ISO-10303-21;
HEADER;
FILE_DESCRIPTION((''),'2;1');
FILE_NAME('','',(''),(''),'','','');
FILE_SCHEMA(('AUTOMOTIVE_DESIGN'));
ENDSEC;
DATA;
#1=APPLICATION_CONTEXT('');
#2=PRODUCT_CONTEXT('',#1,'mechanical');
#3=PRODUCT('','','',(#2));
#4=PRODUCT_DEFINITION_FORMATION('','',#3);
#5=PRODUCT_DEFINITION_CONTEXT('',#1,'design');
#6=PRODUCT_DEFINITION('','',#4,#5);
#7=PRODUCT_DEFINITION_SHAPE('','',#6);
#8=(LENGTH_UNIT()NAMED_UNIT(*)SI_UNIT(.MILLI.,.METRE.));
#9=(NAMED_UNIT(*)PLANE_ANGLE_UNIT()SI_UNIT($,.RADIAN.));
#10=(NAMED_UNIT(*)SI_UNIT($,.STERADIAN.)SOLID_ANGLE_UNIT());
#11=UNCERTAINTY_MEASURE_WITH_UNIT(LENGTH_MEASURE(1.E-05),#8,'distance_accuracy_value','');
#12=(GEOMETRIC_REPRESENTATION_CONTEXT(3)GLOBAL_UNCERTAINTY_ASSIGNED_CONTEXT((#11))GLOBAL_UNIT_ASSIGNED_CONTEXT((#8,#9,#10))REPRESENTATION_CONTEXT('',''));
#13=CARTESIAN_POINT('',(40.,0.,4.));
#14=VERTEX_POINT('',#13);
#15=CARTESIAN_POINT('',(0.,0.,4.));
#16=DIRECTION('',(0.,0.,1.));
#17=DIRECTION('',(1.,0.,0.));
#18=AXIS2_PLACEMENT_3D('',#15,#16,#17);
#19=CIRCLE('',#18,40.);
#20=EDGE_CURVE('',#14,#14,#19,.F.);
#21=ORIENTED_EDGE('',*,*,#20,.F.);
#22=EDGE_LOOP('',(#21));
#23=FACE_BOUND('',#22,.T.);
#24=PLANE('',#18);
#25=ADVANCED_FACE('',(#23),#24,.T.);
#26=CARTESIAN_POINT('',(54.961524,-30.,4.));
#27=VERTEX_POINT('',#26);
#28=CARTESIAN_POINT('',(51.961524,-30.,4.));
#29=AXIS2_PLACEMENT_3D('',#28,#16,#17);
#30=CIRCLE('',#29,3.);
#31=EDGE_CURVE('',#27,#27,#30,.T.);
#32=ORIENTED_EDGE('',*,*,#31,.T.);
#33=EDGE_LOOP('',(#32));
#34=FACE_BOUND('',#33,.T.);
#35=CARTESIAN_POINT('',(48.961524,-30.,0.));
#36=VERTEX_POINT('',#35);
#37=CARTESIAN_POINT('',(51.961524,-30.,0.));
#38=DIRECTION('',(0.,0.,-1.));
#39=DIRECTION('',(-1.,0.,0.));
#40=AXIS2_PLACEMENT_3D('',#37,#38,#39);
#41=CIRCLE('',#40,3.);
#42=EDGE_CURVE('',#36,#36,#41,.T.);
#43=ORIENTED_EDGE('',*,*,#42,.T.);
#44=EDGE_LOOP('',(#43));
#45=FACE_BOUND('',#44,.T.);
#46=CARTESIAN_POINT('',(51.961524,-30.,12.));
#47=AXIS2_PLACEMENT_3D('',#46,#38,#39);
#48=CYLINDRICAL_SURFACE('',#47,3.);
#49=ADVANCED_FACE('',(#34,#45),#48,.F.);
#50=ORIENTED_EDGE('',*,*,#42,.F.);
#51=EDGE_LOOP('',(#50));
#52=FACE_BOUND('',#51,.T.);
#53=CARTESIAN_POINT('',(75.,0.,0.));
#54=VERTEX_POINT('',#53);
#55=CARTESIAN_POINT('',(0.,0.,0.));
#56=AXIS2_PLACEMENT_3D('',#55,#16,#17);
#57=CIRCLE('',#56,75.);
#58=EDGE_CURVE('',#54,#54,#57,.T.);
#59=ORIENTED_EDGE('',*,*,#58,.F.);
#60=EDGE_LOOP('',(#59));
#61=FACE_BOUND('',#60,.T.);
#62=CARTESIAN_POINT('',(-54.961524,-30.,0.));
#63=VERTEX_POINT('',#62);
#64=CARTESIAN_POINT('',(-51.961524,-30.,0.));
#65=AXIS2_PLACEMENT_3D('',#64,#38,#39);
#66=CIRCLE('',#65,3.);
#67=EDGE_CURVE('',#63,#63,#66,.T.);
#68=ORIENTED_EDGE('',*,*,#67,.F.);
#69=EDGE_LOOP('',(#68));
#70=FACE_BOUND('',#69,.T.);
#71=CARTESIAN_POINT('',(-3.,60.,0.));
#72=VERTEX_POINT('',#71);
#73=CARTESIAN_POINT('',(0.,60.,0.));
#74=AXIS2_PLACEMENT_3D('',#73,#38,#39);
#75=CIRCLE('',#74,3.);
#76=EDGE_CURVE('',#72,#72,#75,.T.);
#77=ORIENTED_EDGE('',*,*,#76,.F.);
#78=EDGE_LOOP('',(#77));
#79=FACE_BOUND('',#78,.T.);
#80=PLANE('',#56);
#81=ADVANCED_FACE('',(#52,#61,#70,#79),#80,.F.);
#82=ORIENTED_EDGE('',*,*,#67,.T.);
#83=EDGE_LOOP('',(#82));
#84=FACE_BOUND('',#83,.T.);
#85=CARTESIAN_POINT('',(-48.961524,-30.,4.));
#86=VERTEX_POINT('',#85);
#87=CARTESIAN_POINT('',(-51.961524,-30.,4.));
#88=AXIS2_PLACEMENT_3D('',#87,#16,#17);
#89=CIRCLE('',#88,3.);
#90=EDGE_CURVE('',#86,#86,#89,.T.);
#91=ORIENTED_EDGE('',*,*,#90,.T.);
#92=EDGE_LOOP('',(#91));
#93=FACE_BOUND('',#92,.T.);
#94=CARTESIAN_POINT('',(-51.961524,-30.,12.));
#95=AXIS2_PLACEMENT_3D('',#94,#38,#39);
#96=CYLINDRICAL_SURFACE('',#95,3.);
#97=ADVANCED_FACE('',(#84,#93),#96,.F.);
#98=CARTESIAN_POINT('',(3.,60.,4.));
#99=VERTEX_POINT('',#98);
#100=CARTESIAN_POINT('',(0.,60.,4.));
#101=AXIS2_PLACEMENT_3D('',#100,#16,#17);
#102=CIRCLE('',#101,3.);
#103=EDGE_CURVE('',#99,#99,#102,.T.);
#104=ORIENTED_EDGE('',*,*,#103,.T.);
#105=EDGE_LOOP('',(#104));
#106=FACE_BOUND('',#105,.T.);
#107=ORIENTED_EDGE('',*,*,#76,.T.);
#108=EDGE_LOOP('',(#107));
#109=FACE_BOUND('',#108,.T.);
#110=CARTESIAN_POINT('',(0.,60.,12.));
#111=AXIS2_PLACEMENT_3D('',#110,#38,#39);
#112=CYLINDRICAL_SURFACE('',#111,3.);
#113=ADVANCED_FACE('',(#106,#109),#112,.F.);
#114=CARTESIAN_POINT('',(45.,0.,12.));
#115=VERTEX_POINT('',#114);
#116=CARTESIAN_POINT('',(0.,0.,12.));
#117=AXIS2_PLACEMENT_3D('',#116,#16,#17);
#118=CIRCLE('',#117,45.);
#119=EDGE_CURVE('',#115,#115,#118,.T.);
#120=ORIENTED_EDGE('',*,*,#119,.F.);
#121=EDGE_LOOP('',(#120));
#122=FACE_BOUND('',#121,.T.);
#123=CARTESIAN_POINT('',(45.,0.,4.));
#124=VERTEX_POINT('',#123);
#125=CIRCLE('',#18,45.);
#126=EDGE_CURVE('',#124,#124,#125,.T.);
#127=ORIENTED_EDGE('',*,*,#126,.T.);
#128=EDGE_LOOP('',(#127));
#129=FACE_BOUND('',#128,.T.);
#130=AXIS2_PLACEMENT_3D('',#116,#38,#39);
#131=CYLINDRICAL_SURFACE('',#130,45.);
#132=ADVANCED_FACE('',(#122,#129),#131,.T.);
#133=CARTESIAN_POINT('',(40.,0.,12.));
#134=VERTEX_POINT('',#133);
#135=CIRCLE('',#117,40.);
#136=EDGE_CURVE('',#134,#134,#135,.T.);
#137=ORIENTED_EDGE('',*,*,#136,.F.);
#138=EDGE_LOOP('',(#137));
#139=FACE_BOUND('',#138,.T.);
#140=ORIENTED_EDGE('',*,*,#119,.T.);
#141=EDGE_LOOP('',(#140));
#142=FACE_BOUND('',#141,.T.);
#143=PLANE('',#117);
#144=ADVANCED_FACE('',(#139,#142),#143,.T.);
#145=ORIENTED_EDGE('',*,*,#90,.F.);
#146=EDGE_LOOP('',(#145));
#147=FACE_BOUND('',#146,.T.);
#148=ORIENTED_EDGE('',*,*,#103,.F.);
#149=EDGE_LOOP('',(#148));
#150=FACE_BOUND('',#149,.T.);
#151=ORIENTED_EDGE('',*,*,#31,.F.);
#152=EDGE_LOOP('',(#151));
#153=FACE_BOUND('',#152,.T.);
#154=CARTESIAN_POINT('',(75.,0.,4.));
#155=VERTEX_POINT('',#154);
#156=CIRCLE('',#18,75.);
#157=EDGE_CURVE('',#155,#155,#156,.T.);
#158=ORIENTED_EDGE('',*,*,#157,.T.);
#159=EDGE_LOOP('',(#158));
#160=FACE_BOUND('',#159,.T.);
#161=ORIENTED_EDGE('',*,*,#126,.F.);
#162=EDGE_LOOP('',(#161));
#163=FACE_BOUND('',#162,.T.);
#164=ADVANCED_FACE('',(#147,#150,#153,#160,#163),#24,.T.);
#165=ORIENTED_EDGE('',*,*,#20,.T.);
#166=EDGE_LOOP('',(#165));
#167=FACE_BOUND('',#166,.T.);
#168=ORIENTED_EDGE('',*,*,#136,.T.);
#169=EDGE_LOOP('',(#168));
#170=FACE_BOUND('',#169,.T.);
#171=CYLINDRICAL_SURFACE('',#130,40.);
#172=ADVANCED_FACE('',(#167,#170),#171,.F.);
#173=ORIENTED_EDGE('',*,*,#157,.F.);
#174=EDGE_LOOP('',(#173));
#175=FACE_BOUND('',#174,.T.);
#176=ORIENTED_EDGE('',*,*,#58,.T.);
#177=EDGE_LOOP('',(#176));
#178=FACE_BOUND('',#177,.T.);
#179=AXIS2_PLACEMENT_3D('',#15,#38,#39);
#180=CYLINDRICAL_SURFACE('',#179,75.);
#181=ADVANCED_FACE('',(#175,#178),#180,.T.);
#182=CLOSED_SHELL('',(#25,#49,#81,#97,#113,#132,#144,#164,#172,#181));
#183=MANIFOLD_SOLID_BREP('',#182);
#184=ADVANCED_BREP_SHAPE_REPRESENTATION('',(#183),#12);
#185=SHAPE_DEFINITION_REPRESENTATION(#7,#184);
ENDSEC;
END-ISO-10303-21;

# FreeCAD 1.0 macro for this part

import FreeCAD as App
import Part
import Sketcher
from FreeCAD import Vector

doc = App.newDocument("Part")
params = doc.addObject("Spreadsheet::Sheet", "Params")
for row, (alias, value) in enumerate([
    ("sketch1_diameter", "150 mm"),
    ("pad1_length", "4 mm"),
    ("sketch2_diameter", "90 mm"),
    ("sketch2_diameter2", "80 mm"),
    ("pad2_length", "8 mm"),
    ("sketch3_diameter", "6 mm"),
], start=1):
    params.set(f"A{row}", alias)
    params.set(f"B{row}", "=" + value)
    params.setAlias(f"B{row}", alias)

body = doc.addObject("PartDesign::Body", "Body")

sketch1 = doc.addObject("Sketcher::SketchObject", "Sketch")
body.addObject(sketch1)
sketch1.AttachmentSupport = (doc.XY_Plane, [""])
sketch1.MapMode = "FlatFace"
sketch1.addGeometry(Part.Circle(Vector(0, 0, 0), Vector(0, 0, 1), 75), False)
sketch1.addConstraint(Sketcher.Constraint("Coincident", 0, 3, -1, 1))
sketch1.addConstraint(Sketcher.Constraint("Diameter", 0, 150.0))
sketch1.setExpression("Constraints[1]", "Params.sketch1_diameter")
pad1 = doc.addObject("PartDesign::Pad", "Pad")
body.addObject(pad1)
pad1.Profile = sketch1
pad1.setExpression("Length", "Params.pad1_length")

sketch2 = doc.addObject("Sketcher::SketchObject", "Sketch001")
body.addObject(sketch2)
sketch2.AttachmentSupport = (doc.XY_Plane, [""])
sketch2.MapMode = "FlatFace"
sketch2.AttachmentOffset = App.Placement(Vector(0, 0, 4), App.Rotation())
sketch2.addGeometry(Part.Circle(Vector(0, 0, 0), Vector(0, 0, 1), 45), False)
sketch2.addGeometry(Part.Circle(Vector(0, 0, 0), Vector(0, 0, 1), 40), False)
sketch2.addConstraint(Sketcher.Constraint("Coincident", 0, 3, -1, 1))
sketch2.addConstraint(Sketcher.Constraint("Coincident", 1, 3, -1, 1))
sketch2.addConstraint(Sketcher.Constraint("Diameter", 0, 90.0))
sketch2.addConstraint(Sketcher.Constraint("Diameter", 1, 80.0))
sketch2.setExpression("Constraints[2]", "Params.sketch2_diameter")
sketch2.setExpression("Constraints[3]", "Params.sketch2_diameter2")
pad2 = doc.addObject("PartDesign::Pad", "Pad001")
body.addObject(pad2)
pad2.Profile = sketch2
pad2.setExpression("Length", "Params.pad2_length")

sketch3 = doc.addObject("Sketcher::SketchObject", "Sketch002")
body.addObject(sketch3)
sketch3.AttachmentSupport = (doc.XY_Plane, [""])
sketch3.MapMode = "FlatFace"
sketch3.addGeometry(Part.Circle(Vector(0, 60, 0), Vector(0, 0, 1), 3), False)
sketch3.addGeometry(Part.Circle(Vector(-51.961524, -30, 0), Vector(0, 0, 1), 3), False)
sketch3.addGeometry(Part.Circle(Vector(51.961524, -30, 0), Vector(0, 0, 1), 3), False)
sketch3.addConstraint(Sketcher.Constraint("Equal", 0, 1))
sketch3.addConstraint(Sketcher.Constraint("Equal", 1, 2))
sketch3.addConstraint(Sketcher.Constraint("Symmetric", 1, 3, 2, 3, -2))
sketch3.addConstraint(Sketcher.Constraint("PointOnObject", 0, 3, -2))
sketch3.addConstraint(Sketcher.Constraint("Diameter", 0, 6.0))
sketch3.addConstraint(Sketcher.Constraint("DistanceY", -1, 1, 0, 3, 60.0))
sketch3.addConstraint(Sketcher.Constraint("DistanceY", 1, 3, -1, 1, 30.0))
sketch3.addConstraint(Sketcher.Constraint("DistanceX", 1, 3, 2, 3, 103.923048))
sketch3.setExpression("Constraints[4]", "Params.sketch3_diameter")
pocket1 = doc.addObject("PartDesign::Pocket", "Pocket")
body.addObject(pocket1)
pocket1.Profile = sketch3
pocket1.Type = "ThroughAll"
pocket1.Reversed = True

doc.recompute()
